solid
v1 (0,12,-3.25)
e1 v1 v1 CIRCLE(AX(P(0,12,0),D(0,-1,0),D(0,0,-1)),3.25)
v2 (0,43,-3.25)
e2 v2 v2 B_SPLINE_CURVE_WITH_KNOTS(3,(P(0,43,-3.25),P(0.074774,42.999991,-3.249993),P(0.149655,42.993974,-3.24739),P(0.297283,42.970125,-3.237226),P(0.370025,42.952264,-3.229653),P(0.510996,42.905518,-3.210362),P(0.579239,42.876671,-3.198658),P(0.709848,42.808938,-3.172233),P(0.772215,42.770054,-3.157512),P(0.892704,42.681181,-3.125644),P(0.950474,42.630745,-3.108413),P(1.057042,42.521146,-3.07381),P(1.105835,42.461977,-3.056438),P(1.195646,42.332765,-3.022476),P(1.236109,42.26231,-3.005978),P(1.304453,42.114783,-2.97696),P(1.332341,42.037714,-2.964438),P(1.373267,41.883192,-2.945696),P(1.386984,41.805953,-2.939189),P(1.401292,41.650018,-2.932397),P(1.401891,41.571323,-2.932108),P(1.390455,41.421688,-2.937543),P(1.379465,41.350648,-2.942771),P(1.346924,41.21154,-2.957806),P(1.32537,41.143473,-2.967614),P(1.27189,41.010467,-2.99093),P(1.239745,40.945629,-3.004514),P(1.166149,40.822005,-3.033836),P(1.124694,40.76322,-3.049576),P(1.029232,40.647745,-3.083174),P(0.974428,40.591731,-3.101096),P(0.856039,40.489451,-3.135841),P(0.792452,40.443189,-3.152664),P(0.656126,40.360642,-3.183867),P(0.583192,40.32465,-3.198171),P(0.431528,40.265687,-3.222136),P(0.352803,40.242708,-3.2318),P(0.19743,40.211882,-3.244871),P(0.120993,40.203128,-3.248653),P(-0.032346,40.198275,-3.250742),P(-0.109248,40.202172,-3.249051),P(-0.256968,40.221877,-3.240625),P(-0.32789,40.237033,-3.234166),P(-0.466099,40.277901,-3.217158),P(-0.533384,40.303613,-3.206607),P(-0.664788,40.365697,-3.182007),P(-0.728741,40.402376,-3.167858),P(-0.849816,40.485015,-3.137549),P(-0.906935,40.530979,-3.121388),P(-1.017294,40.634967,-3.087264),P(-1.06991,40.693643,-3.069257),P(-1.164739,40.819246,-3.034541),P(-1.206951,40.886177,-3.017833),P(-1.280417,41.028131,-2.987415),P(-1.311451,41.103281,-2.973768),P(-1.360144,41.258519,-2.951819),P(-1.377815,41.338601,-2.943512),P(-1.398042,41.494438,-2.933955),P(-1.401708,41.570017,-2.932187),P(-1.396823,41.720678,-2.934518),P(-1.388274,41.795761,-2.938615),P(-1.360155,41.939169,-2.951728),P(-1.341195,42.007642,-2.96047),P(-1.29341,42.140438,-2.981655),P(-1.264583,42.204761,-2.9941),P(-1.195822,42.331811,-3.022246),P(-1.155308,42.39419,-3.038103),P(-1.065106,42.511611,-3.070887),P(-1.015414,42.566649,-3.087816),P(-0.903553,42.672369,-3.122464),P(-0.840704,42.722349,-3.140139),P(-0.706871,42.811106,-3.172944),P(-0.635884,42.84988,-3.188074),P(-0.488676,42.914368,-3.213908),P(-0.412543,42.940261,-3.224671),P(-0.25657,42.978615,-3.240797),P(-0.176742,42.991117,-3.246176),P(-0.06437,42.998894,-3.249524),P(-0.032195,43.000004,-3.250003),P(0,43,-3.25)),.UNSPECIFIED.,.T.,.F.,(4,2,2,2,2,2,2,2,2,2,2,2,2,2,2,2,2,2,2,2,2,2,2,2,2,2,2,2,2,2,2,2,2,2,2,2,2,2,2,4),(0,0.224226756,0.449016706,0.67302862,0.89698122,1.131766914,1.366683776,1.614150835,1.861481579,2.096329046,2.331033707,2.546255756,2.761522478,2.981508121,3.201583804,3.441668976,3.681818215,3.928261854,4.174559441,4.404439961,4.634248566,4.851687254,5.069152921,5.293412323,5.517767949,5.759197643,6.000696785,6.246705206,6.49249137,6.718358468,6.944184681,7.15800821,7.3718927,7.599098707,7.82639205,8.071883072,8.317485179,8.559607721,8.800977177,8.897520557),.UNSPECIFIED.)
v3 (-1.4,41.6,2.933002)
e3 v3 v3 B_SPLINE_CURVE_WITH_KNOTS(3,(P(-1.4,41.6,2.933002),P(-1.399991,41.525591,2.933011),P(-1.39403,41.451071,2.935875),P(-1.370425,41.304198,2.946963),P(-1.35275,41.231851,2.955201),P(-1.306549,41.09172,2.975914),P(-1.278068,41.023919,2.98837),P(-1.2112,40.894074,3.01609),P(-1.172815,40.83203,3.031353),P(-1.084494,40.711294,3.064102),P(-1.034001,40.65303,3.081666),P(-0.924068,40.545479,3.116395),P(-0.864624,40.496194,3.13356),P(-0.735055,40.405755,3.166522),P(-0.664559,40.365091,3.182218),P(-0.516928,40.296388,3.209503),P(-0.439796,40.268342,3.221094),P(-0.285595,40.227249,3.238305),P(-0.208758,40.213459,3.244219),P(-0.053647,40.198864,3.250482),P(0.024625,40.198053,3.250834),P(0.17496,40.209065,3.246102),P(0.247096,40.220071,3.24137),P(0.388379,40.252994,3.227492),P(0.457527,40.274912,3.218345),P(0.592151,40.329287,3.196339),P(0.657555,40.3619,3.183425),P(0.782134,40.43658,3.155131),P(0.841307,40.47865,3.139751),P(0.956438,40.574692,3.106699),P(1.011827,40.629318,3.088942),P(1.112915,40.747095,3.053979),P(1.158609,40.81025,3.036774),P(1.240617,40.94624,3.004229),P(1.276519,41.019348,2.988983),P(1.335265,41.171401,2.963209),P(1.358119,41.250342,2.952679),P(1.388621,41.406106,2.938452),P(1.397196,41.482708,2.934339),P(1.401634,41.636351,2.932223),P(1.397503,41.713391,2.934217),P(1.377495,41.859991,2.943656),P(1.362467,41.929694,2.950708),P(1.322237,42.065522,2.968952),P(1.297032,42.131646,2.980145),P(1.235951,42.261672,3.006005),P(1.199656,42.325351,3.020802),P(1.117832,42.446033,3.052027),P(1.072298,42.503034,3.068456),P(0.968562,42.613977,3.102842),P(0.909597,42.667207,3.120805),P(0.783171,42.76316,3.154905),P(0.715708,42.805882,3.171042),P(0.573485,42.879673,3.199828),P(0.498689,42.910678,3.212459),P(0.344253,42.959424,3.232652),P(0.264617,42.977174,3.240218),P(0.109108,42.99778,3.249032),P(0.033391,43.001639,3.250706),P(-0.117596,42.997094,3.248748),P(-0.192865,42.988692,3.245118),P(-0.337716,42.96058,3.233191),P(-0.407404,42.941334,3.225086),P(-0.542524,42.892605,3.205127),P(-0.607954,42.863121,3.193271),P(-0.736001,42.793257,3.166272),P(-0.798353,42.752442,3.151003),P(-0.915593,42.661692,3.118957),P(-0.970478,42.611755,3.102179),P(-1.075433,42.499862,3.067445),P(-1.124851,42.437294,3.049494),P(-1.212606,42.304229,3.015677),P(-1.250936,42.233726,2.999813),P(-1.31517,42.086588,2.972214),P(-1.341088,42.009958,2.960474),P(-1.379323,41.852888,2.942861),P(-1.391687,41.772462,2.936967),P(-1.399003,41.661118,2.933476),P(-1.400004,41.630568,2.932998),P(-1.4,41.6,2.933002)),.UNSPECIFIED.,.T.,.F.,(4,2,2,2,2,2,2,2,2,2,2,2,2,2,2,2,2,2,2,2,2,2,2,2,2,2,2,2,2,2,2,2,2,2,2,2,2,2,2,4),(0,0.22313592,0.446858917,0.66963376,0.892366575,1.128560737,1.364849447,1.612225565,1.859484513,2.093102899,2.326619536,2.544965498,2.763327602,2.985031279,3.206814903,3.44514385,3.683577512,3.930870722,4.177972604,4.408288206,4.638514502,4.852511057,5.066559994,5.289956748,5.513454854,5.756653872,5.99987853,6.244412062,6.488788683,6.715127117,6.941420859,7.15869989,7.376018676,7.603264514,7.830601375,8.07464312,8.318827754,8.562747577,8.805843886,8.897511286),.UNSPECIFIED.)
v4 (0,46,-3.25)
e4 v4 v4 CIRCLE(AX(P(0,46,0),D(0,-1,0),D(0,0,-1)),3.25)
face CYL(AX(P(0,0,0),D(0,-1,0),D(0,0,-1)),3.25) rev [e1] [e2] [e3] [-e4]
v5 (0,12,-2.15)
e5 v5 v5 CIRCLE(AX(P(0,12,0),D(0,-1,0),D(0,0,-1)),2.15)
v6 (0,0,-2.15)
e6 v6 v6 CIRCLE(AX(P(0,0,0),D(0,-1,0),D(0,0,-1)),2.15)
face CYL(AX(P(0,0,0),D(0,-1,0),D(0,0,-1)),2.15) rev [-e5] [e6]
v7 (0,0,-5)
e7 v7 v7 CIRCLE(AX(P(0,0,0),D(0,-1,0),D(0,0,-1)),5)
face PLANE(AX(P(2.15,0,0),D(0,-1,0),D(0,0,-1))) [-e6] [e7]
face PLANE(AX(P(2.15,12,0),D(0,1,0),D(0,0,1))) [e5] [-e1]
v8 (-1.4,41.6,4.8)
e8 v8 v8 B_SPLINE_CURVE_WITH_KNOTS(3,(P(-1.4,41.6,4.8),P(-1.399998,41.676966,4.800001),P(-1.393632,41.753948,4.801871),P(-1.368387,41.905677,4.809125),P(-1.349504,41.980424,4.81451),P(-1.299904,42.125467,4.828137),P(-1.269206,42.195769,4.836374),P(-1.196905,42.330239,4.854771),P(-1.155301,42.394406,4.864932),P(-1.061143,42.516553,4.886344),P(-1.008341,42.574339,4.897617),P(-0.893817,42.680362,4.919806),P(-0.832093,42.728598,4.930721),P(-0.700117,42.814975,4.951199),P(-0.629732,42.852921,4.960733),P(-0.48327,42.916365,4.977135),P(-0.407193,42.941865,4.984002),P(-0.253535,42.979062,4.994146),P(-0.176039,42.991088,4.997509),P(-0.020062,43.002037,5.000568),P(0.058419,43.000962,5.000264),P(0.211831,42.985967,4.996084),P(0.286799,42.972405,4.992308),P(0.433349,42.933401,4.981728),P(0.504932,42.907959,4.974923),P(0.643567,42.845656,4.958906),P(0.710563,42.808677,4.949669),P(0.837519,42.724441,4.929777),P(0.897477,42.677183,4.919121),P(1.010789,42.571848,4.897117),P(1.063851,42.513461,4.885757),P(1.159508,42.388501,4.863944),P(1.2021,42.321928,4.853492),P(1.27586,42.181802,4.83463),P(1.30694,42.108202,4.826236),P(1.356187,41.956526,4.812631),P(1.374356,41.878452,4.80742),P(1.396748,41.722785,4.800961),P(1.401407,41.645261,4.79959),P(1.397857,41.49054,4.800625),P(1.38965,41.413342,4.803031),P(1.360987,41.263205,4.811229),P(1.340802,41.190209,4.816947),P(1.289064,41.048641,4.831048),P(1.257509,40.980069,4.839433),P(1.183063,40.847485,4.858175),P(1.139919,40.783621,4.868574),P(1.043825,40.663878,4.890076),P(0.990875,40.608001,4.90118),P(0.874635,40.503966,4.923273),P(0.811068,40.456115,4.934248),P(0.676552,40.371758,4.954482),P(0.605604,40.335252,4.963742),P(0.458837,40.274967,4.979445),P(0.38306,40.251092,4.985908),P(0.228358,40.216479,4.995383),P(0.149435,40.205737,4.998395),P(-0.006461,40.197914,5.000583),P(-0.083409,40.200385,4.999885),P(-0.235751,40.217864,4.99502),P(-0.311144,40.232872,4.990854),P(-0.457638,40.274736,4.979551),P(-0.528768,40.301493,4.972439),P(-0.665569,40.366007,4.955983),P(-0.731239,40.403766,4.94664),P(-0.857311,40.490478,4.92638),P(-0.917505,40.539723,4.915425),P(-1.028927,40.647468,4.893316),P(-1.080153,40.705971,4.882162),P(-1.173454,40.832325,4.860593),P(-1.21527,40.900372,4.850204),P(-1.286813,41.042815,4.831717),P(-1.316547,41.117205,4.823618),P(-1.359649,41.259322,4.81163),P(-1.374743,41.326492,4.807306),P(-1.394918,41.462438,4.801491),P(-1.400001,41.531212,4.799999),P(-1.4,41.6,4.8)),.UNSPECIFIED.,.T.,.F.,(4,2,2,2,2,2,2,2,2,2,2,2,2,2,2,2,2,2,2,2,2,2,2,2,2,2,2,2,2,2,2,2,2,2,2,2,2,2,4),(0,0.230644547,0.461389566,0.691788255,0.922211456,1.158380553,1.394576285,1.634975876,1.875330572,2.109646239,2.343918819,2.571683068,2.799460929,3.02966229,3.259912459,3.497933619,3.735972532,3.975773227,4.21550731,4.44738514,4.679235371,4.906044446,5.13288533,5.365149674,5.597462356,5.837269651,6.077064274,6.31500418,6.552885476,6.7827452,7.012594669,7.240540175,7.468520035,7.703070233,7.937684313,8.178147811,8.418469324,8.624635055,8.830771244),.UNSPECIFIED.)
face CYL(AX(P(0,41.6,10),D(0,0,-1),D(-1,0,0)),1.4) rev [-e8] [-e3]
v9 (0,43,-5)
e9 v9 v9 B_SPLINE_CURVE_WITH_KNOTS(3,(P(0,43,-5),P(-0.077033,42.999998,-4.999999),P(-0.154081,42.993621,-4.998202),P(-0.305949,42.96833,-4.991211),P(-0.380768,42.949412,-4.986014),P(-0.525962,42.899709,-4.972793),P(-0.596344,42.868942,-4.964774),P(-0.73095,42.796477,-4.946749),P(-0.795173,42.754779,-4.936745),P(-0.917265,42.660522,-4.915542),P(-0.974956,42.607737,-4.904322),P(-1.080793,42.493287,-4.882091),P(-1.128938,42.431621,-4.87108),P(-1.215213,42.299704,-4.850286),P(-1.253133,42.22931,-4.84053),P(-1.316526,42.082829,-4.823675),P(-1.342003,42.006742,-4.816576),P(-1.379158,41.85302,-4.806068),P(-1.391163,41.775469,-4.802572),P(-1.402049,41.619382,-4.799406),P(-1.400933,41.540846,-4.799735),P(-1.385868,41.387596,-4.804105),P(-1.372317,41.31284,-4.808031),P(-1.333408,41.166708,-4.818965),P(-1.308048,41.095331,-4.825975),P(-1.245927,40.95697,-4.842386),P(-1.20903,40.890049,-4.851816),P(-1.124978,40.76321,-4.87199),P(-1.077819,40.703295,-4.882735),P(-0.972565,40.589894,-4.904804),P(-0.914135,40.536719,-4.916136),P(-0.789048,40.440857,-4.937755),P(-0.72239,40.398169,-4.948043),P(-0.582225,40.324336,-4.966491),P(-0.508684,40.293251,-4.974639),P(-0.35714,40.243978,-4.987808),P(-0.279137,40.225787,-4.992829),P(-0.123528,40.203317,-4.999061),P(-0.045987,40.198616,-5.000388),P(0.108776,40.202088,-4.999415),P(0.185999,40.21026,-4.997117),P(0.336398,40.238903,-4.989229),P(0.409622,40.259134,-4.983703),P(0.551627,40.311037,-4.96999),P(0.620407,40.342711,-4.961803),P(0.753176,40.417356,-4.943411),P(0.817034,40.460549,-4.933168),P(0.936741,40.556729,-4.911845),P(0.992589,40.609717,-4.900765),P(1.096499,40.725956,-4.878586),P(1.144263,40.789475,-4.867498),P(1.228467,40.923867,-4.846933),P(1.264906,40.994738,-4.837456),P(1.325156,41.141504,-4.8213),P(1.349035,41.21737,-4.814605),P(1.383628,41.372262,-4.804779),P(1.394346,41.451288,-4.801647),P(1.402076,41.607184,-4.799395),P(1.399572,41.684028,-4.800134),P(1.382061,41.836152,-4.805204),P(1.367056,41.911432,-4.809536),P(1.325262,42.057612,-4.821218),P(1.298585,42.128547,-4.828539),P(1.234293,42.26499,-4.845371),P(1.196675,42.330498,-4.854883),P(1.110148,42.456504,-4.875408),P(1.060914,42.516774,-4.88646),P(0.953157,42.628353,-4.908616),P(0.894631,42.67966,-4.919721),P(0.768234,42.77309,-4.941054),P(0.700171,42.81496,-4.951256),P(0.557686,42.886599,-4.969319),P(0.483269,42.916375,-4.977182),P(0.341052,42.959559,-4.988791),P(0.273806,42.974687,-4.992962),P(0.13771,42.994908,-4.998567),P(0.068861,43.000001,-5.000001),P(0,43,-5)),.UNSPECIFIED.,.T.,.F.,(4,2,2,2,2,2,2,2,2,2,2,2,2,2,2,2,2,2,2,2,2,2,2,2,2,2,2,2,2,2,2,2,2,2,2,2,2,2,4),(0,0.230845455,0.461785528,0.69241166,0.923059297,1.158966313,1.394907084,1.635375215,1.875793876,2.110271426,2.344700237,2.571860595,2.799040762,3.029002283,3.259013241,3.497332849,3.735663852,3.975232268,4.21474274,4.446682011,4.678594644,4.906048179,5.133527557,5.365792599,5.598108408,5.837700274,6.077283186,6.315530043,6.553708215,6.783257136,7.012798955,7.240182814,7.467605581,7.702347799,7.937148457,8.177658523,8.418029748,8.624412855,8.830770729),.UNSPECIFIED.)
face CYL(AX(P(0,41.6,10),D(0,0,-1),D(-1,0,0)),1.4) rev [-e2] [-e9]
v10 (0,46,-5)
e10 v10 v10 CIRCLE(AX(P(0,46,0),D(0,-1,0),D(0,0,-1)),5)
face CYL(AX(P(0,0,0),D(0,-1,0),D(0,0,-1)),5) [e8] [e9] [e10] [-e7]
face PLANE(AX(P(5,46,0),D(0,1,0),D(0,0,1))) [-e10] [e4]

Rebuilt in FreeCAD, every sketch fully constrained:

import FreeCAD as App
import Part
import Sketcher

V = App.Vector
Q = App.Units.Quantity

doc = App.newDocument("Part")
body = doc.addObject("PartDesign::Body", "Body")

# Sketch on XY plane
sketch1 = body.newObject("Sketcher::SketchObject", "Sketch")
sketch1.AttachmentSupport = (doc.getObject("XY_Plane"), [""])
sketch1.MapMode = "FlatFace"
sketch1.addGeometry([
    Part.LineSegment(V(2.1, 0, 0), V(5, 0, 0)),  # 0
    Part.LineSegment(V(5, 0, 0), V(5, 46, 0)),  # 1
    Part.LineSegment(V(5, 46, 0), V(3.2, 46, 0)),  # 2
    Part.LineSegment(V(3.2, 46, 0), V(3.2, 12, 0)),  # 3
    Part.LineSegment(V(3.2, 12, 0), V(2.1, 12, 0)),  # 4
    Part.LineSegment(V(2.1, 12, 0), V(2.1, 0, 0)),  # 5
], False)
sketch1.addConstraint([
    Sketcher.Constraint("Coincident", 0, 2, 1, 1),
    Sketcher.Constraint("Coincident", 1, 2, 2, 1),
    Sketcher.Constraint("Coincident", 2, 2, 3, 1),
    Sketcher.Constraint("Coincident", 3, 2, 4, 1),
    Sketcher.Constraint("Coincident", 4, 2, 5, 1),
    Sketcher.Constraint("Coincident", 5, 2, 0, 1),
    Sketcher.Constraint("Horizontal", 0),
    Sketcher.Constraint("Vertical", 1),
    Sketcher.Constraint("Horizontal", 2),
    Sketcher.Constraint("Vertical", 3),
    Sketcher.Constraint("Horizontal", 4),
    Sketcher.Constraint("Vertical", 5),
    Sketcher.Constraint("PointOnObject", 0, 2, -1),
    Sketcher.Constraint("DistanceY", 1, 1, 1, 2, Q("46 mm")),
    Sketcher.Constraint("DistanceY", 3, 2, 3, 1, Q("34 mm")),
    Sketcher.Constraint("DistanceX", 4, 2, 4, 1, Q("1.1 mm")),
    Sketcher.Constraint("DistanceX", -1, 1, 0, 2, Q("5 mm")),
    Sketcher.Constraint("DistanceX", 0, 1, 0, 2, Q("2.85 mm")),
])
revolution = body.newObject("PartDesign::Revolution", "Revolution")
revolution.Profile = sketch1
revolution.ReferenceAxis = (sketch1, ["V_Axis"])
revolution.Angle = 360

# Sketch on XY plane
sketch2 = body.newObject("Sketcher::SketchObject", "Sketch001")
sketch2.AttachmentSupport = (doc.getObject("XY_Plane"), [""])
sketch2.MapMode = "FlatFace"
sketch2.addGeometry(Part.Circle(V(0, 41.6, 0), V(0, 0, 1), 1.4), False)
sketch2.addConstraint([
    Sketcher.Constraint("PointOnObject", 0, 3, -2),
    Sketcher.Constraint("Diameter", 0, Q("2.8 mm")),
    Sketcher.Constraint("DistanceY", -1, 1, 0, 3, Q("41.6 mm")),
])
pocket1 = body.newObject("PartDesign::Pocket", "Pocket")
pocket1.Profile = sketch2
pocket1.Type = "ThroughAll"
pocket1.Midplane = True

doc.recompute()
